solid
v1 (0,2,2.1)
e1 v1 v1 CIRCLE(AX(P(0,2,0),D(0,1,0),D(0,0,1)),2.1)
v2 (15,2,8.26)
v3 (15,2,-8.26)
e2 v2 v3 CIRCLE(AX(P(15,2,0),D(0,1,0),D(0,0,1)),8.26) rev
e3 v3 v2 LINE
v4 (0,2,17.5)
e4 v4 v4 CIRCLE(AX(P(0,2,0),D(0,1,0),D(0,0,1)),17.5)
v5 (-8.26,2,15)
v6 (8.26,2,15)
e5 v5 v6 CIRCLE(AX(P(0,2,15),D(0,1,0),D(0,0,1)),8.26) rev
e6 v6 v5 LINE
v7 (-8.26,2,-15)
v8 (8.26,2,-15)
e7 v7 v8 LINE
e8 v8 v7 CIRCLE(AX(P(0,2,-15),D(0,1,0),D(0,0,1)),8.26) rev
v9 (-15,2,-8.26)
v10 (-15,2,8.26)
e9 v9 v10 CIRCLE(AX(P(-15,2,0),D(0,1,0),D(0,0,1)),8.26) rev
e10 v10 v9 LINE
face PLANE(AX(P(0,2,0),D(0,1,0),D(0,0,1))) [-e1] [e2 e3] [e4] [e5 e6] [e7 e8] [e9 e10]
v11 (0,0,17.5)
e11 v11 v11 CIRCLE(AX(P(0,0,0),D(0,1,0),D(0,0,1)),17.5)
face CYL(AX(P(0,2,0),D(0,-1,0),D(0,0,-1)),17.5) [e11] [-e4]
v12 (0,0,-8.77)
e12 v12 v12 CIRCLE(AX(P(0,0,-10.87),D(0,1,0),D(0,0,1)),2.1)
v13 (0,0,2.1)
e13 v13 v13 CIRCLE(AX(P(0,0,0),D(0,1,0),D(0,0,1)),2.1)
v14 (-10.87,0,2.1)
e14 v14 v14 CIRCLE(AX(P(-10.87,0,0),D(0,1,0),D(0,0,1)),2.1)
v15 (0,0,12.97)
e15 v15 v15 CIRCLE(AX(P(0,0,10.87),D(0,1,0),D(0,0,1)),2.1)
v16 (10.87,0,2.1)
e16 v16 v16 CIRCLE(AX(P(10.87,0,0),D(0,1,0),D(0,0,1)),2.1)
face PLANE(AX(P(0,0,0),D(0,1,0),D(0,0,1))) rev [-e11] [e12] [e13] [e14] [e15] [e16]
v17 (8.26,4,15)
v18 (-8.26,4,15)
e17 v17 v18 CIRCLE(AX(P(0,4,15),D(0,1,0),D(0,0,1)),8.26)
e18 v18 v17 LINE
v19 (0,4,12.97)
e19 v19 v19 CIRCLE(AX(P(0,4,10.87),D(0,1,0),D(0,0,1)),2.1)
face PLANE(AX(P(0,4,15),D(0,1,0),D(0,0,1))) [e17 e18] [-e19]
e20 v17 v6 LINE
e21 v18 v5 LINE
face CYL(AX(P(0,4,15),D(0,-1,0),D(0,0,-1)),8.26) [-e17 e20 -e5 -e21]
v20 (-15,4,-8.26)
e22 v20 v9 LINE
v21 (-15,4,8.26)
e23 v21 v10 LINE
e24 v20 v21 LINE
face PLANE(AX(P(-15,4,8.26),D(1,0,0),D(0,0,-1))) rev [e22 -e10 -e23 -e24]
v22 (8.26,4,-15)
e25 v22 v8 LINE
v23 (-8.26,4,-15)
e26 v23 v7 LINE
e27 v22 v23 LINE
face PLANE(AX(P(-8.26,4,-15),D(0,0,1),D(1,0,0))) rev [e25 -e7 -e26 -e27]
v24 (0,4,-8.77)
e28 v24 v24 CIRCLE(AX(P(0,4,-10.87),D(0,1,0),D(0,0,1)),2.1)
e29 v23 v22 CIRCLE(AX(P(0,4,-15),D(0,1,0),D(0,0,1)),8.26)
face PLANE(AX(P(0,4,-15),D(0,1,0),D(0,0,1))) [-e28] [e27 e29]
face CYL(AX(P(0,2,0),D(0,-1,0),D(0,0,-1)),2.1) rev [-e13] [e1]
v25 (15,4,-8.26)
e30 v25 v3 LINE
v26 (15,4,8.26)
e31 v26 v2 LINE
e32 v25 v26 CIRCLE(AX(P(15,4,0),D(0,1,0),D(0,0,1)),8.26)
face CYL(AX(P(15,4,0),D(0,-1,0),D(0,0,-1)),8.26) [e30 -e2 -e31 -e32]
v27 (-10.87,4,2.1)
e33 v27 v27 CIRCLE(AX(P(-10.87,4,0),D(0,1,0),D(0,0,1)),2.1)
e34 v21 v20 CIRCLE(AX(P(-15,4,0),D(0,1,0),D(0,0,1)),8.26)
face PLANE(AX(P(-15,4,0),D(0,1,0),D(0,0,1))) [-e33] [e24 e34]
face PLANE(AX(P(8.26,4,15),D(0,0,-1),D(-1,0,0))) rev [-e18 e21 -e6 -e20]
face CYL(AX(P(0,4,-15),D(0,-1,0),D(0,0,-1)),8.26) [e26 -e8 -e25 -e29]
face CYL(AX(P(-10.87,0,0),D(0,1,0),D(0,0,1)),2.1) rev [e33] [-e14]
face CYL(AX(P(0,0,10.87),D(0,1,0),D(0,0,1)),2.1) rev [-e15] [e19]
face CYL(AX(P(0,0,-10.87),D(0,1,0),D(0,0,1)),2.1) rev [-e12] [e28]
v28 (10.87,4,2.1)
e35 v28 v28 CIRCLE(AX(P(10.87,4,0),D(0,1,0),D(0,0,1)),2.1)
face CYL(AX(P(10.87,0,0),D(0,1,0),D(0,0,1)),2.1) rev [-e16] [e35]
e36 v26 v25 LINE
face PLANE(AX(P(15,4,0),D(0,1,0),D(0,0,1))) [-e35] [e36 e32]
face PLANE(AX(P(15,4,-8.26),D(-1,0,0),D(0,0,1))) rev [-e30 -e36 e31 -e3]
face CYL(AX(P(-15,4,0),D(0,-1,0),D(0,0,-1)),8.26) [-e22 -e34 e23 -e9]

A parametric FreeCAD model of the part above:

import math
import FreeCAD as App
import Part
import Sketcher
from FreeCAD import Vector

doc = App.newDocument("Part")
params = doc.addObject("Spreadsheet::Sheet", "Params")
for row, (alias, value) in enumerate([
    ("sketch1_diameter", "35 mm"),
    ("sketch1_diameter2", "4.2 mm"),
    ("pad1_length", "2 mm"),
    ("sketch2_radius", "8.26 mm"),
    ("pad2_length", "4 mm"),
    ("sketch3_diameter", "4.2 mm"),
], start=1):
    params.set(f"A{row}", alias)
    params.set(f"B{row}", "=" + value)
    params.setAlias(f"B{row}", alias)

body = doc.addObject("PartDesign::Body", "Body")

# Sketch on XZ plane
sketch1 = body.newObject("Sketcher::SketchObject", "Sketch")
sketch1.AttachmentSupport = (doc.getObject("XZ_Plane"), [""])
sketch1.MapMode = "FlatFace"
sketch1.addGeometry(Part.Circle(Vector(0, 0, 0), Vector(0, 0, 1), 17.5), False)
sketch1.addGeometry(Part.Circle(Vector(0, 0, 0), Vector(0, 0, 1), 2.1), False)
sketch1.addConstraint(Sketcher.Constraint("Coincident", 0, 3, -1, 1))
sketch1.addConstraint(Sketcher.Constraint("Coincident", 1, 3, -1, 1))
sketch1.addConstraint(Sketcher.Constraint("Diameter", 0, 35.0))
sketch1.addConstraint(Sketcher.Constraint("Diameter", 1, 4.2))
sketch1.setExpression("Constraints[2]", "Params.sketch1_diameter")
sketch1.setExpression("Constraints[3]", "Params.sketch1_diameter2")
pad1 = body.newObject("PartDesign::Pad", "Pad")
pad1.Profile = sketch1
pad1.setExpression("Length", "Params.pad1_length")
pad1.Reversed = True

# Sketch on XZ plane
sketch2 = body.newObject("Sketcher::SketchObject", "Sketch001")
sketch2.AttachmentSupport = (doc.getObject("XZ_Plane"), [""])
sketch2.MapMode = "FlatFace"
sketch2.addGeometry(Part.LineSegment(Vector(8, -15, 0), Vector(-8, -15, 0)), False)
sketch2.addGeometry(Part.ArcOfCircle(Part.Circle(Vector(0, -15, 0), Vector(0, 0, 1), 8), math.radians(0), math.radians(180)), False)
sketch2.addGeometry(Part.LineSegment(Vector(15, 8, 0), Vector(15, -8, 0)), False)
sketch2.addGeometry(Part.ArcOfCircle(Part.Circle(Vector(15, 0, 0), Vector(0, 0, 1), 8), math.radians(90), math.radians(270)), False)
sketch2.addGeometry(Part.LineSegment(Vector(-8, 15, 0), Vector(8, 15, 0)), False)
sketch2.addGeometry(Part.ArcOfCircle(Part.Circle(Vector(0, 15, 0), Vector(0, 0, 1), 8), math.radians(180), math.radians(360)), False)
sketch2.addGeometry(Part.LineSegment(Vector(-15, -8, 0), Vector(-15, 8, 0)), False)
sketch2.addGeometry(Part.ArcOfCircle(Part.Circle(Vector(-15, 0, 0), Vector(0, 0, 1), 8), math.radians(-90), math.radians(90)), False)
sketch2.addConstraint(Sketcher.Constraint("Coincident", 0, 1, 1, 1))
sketch2.addConstraint(Sketcher.Constraint("Coincident", 1, 2, 0, 2))
sketch2.addConstraint(Sketcher.Constraint("Coincident", 2, 1, 3, 1))
sketch2.addConstraint(Sketcher.Constraint("Coincident", 3, 2, 2, 2))
sketch2.addConstraint(Sketcher.Constraint("Coincident", 4, 1, 5, 1))
sketch2.addConstraint(Sketcher.Constraint("Coincident", 5, 2, 4, 2))
sketch2.addConstraint(Sketcher.Constraint("Coincident", 6, 1, 7, 1))
sketch2.addConstraint(Sketcher.Constraint("Coincident", 7, 2, 6, 2))
sketch2.addConstraint(Sketcher.Constraint("Horizontal", 0))
sketch2.addConstraint(Sketcher.Constraint("Vertical", 2))
sketch2.addConstraint(Sketcher.Constraint("Horizontal", 4))
sketch2.addConstraint(Sketcher.Constraint("Vertical", 6))
sketch2.addConstraint(Sketcher.Constraint("Equal", 1, 3))
sketch2.addConstraint(Sketcher.Constraint("Equal", 3, 5))
sketch2.addConstraint(Sketcher.Constraint("Equal", 5, 7))
sketch2.addConstraint(Sketcher.Constraint("Symmetric", 1, 3, 5, 3, -1, 1))
sketch2.addConstraint(Sketcher.Constraint("Symmetric", 3, 3, 7, 3, -1, 1))
sketch2.addConstraint(Sketcher.Constraint("Symmetric", 3, 2, 6, 1, -2))
sketch2.addConstraint(Sketcher.Constraint("Symmetric", 1, 2, 4, 1, -1))
sketch2.addConstraint(Sketcher.Constraint("Horizontal", 1, 3, 0, 1))
sketch2.addConstraint(Sketcher.Constraint("Vertical", 3, 3, 2, 1))
sketch2.addConstraint(Sketcher.Constraint("Radius", 1, 8.26))
sketch2.addConstraint(Sketcher.Constraint("DistanceY", 1, 3, -1, 1, 15.0))
sketch2.addConstraint(Sketcher.Constraint("DistanceX", -1, 1, 3, 3, 15.0))
sketch2.setExpression("Constraints[21]", "Params.sketch2_radius")
pad2 = body.newObject("PartDesign::Pad", "Pad001")
pad2.Profile = sketch2
pad2.setExpression("Length", "Params.pad2_length")
pad2.Reversed = True

# Sketch on XZ plane
sketch3 = body.newObject("Sketcher::SketchObject", "Sketch002")
sketch3.AttachmentSupport = (doc.getObject("XZ_Plane"), [""])
sketch3.MapMode = "FlatFace"
sketch3.AttachmentOffset = App.Placement(Vector(0, 0, -4), App.Rotation())
sketch3.addGeometry(Part.Circle(Vector(0, -10.9, 0), Vector(0, 0, 1), 2.1), False)
sketch3.addGeometry(Part.Circle(Vector(10.9, 0, 0), Vector(0, 0, 1), 2.1), False)
sketch3.addGeometry(Part.Circle(Vector(0, 10.9, 0), Vector(0, 0, 1), 2.1), False)
sketch3.addGeometry(Part.Circle(Vector(-10.9, 0, 0), Vector(0, 0, 1), 2.1), False)
sketch3.addConstraint(Sketcher.Constraint("Equal", 0, 1))
sketch3.addConstraint(Sketcher.Constraint("Equal", 1, 2))
sketch3.addConstraint(Sketcher.Constraint("Equal", 2, 3))
sketch3.addConstraint(Sketcher.Constraint("Symmetric", 0, 3, 2, 3, -1, 1))
sketch3.addConstraint(Sketcher.Constraint("Symmetric", 1, 3, 3, 3, -1, 1))
sketch3.addConstraint(Sketcher.Constraint("PointOnObject", 0, 3, -2))
sketch3.addConstraint(Sketcher.Constraint("PointOnObject", 1, 3, -1))
sketch3.addConstraint(Sketcher.Constraint("Diameter", 0, 4.2))
sketch3.addConstraint(Sketcher.Constraint("DistanceY", 0, 3, -1, 1, 10.87))
sketch3.addConstraint(Sketcher.Constraint("DistanceX", -1, 1, 1, 3, 10.87))
sketch3.setExpression("Constraints[7]", "Params.sketch3_diameter")
pocket1 = body.newObject("PartDesign::Pocket", "Pocket")
pocket1.Profile = sketch3
pocket1.Type = "ThroughAll"
pocket1.Reversed = True

doc.recompute()
